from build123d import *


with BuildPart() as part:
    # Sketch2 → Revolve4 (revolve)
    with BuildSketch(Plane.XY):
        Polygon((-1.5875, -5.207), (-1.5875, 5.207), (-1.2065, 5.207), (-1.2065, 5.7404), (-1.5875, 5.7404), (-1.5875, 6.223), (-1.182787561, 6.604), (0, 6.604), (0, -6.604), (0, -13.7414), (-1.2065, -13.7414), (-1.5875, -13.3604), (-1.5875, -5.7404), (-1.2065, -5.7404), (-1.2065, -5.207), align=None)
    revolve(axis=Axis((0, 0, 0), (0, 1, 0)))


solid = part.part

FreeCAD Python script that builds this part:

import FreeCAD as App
import Part
import Sketcher

V = App.Vector
Q = App.Units.Quantity


def add_polygon(sketch, points):
    """Adds a closed chain of lines whose ends are joined by coincident constraints."""
    first, n = sketch.GeometryCount, len(points)
    for a, b in zip(points, points[1:] + points[:1]):
        sketch.addGeometry(Part.LineSegment(App.Vector(*a, 0), App.Vector(*b, 0)), False)
    for i in range(n):
        sketch.addConstraint(Sketcher.Constraint("Coincident", first + i, 2, first + (i + 1) % n, 1))

doc = App.newDocument("Part")
body = doc.addObject("PartDesign::Body", "Body")

sketch1 = body.newObject("Sketcher::SketchObject", "Sketch")
sketch1.AttachmentSupport = (doc.getObject("XY_Plane"), [""])
sketch1.MapMode = "FlatFace"
add_polygon(sketch1, [(-1.5875, 5.207), (-1.5875, -5.207), (-1.2065, -5.207), (-1.2065, -5.7404), (-1.5875, -5.7404), (-1.5875, -13.3604), (-1.2065, -13.7414), (0, -13.7414), (0, 6.604), (-1.182788, 6.604), (-1.5875, 6.223), (-1.5875, 5.7404), (-1.2065, 5.7404), (-1.2065, 5.207)])
sketch1.addConstraint(Sketcher.Constraint("Vertical", 0))
sketch1.addConstraint(Sketcher.Constraint("Horizontal", 1))
sketch1.addConstraint(Sketcher.Constraint("Vertical", 2))
sketch1.addConstraint(Sketcher.Constraint("Horizontal", 3))
sketch1.addConstraint(Sketcher.Constraint("Vertical", 4))
sketch1.addConstraint(Sketcher.Constraint("Horizontal", 6))
sketch1.addConstraint(Sketcher.Constraint("Vertical", 7))
sketch1.addConstraint(Sketcher.Constraint("Horizontal", 8))
sketch1.addConstraint(Sketcher.Constraint("Vertical", 10))
sketch1.addConstraint(Sketcher.Constraint("Horizontal", 11))
sketch1.addConstraint(Sketcher.Constraint("Vertical", 12))
sketch1.addConstraint(Sketcher.Constraint("Horizontal", 13))
sketch1.addConstraint(Sketcher.Constraint("Symmetric", 3, 2, 10, 2, -1))
sketch1.addConstraint(Sketcher.Constraint("Symmetric", 1, 2, 12, 2, -1))
sketch1.addConstraint(Sketcher.Constraint("PointOnObject", 6, 2, -2))
sketch1.addConstraint(Sketcher.Constraint("Vertical", 0, 2, 3, 2))
sketch1.addConstraint(Sketcher.Constraint("Vertical", 2, 2, 5, 2))
sketch1.addConstraint(Sketcher.Constraint("DistanceY", 4, 2, 4, 1, Q("0.3 in")))
sketch1.addConstraint(Sketcher.Constraint("Angle", 5, Q("-45 deg")))
sketch1.addConstraint(Sketcher.Constraint("DistanceY", 0, 2, 0, 1, Q("0.41 in")))
sketch1.addConstraint(Sketcher.Constraint("DistanceX", 1, 1, 1, 2, Q("0.015 in")))
sketch1.addConstraint(Sketcher.Constraint("DistanceY", 2, 2, 2, 1, Q("0.021 in")))
sketch1.addConstraint(Sketcher.Constraint("DistanceY", 7, 1, 7, 2, Q("0.801 in")))
sketch1.addConstraint(Sketcher.Constraint("DistanceY", 10, 2, 10, 1, Q("0.019 in")))
sketch1.addConstraint(Sketcher.Constraint("DistanceX", 6, 1, 6, 2, Q("0.0475 in")))
sketch1.addConstraint(Sketcher.Constraint("DistanceX", 8, 2, 8, 1, 1.182788))
revolution = body.newObject("PartDesign::Revolution", "Revolution")
revolution.Profile = sketch1
revolution.ReferenceAxis = (sketch1, ["V_Axis"])
revolution.Angle = 360

doc.recompute()
